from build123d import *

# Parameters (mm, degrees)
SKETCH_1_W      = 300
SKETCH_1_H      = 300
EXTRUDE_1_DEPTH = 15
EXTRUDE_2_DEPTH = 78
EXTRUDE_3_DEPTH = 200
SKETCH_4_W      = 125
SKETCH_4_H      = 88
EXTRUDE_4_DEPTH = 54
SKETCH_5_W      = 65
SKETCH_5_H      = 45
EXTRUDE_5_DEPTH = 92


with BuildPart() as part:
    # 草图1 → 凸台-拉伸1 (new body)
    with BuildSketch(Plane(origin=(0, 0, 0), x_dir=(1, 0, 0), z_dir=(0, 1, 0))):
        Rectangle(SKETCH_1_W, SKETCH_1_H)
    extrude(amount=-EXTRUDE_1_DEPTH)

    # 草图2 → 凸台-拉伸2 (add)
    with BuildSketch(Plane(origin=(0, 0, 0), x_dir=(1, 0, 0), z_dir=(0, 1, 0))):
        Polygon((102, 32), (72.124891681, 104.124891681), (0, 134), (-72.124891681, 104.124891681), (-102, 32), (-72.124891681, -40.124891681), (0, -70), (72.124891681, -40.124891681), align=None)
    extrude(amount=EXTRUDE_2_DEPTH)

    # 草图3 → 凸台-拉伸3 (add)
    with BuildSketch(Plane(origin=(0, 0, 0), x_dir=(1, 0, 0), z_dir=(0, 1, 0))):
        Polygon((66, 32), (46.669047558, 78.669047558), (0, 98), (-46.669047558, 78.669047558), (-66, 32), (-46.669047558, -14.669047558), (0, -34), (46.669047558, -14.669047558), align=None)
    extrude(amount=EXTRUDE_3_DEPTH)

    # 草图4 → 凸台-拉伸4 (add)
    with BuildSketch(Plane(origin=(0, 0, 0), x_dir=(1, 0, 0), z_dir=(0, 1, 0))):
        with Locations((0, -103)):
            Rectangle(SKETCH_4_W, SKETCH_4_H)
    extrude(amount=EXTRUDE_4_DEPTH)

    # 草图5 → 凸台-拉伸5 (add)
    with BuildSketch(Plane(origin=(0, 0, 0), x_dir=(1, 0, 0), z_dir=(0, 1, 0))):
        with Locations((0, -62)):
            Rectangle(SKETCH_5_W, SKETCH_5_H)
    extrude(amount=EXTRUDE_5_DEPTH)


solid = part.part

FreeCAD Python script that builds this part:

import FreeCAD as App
import Part
import Sketcher
Q = App.Units.Quantity

doc = App.newDocument("Part")
body = doc.addObject("PartDesign::Body", "Body")

# Sketch on XZ plane
sketch1 = body.newObject("Sketcher::SketchObject", "Sketch")
sketch1.AttachmentSupport = (doc.getObject("XZ_Plane"), [""])
sketch1.MapMode = "FlatFace"
sketch1.addGeometry([
    Part.LineSegment(App.Vector(-150, -150, 0), App.Vector(-150, 150, 0)),
    Part.LineSegment(App.Vector(-150, 150, 0), App.Vector(150, 150, 0)),
    Part.LineSegment(App.Vector(150, 150, 0), App.Vector(150, -150, 0)),
    Part.LineSegment(App.Vector(150, -150, 0), App.Vector(-150, -150, 0)),
], False)
sketch1.addConstraint([
    Sketcher.Constraint("Coincident", 0, 2, 1, 1),
    Sketcher.Constraint("Coincident", 1, 2, 2, 1),
    Sketcher.Constraint("Coincident", 2, 2, 3, 1),
    Sketcher.Constraint("Coincident", 3, 2, 0, 1),
    Sketcher.Constraint("Vertical", 0),
    Sketcher.Constraint("Horizontal", 1),
    Sketcher.Constraint("Vertical", 2),
    Sketcher.Constraint("Horizontal", 3),
    Sketcher.Constraint("Symmetric", 0, 2, 2, 2, -1, 1),
    Sketcher.Constraint("Equal", 3, 0),
    Sketcher.Constraint("DistanceX", 1, 1, 1, 2, Q("300 mm")),
])
pad1 = body.newObject("PartDesign::Pad", "Pad")
pad1.Profile = sketch1
pad1.Length = 15

# Sketch on XZ plane
sketch2 = body.newObject("Sketcher::SketchObject", "Sketch001")
sketch2.AttachmentSupport = (doc.getObject("XZ_Plane"), [""])
sketch2.MapMode = "FlatFace"
sketch2.addGeometry([
    Part.LineSegment(App.Vector(102, -32, 0), App.Vector(72, -104, 0)),  # 0
    Part.LineSegment(App.Vector(72, -104, 0), App.Vector(0, -134, 0)),  # 1
    Part.LineSegment(App.Vector(0, -134, 0), App.Vector(-72, -104, 0)),  # 2
    Part.LineSegment(App.Vector(-72, -104, 0), App.Vector(-102, -32, 0)),  # 3
    Part.LineSegment(App.Vector(-102, -32, 0), App.Vector(-72, 40, 0)),  # 4
    Part.LineSegment(App.Vector(-72, 40, 0), App.Vector(0, 70, 0)),  # 5
    Part.LineSegment(App.Vector(0, 70, 0), App.Vector(72, 40, 0)),  # 6
    Part.LineSegment(App.Vector(72, 40, 0), App.Vector(102, -32, 0)),  # 7
], False)
sketch2.addConstraint([
    Sketcher.Constraint("Coincident", 0, 2, 1, 1),
    Sketcher.Constraint("Coincident", 1, 2, 2, 1),
    Sketcher.Constraint("Coincident", 2, 2, 3, 1),
    Sketcher.Constraint("Coincident", 3, 2, 4, 1),
    Sketcher.Constraint("Coincident", 4, 2, 5, 1),
    Sketcher.Constraint("Coincident", 5, 2, 6, 1),
    Sketcher.Constraint("Coincident", 6, 2, 7, 1),
    Sketcher.Constraint("Coincident", 7, 2, 0, 1),
    Sketcher.Constraint("Symmetric", 0, 2, 2, 2, -2),
    Sketcher.Constraint("Symmetric", 4, 2, 6, 2, -2),
    Sketcher.Constraint("Symmetric", 3, 2, 7, 2, -2),
    Sketcher.Constraint("PointOnObject", 1, 2, -2),
    Sketcher.Constraint("PointOnObject", 5, 2, -2),
    Sketcher.Constraint("Perpendicular", 0, 2),
    Sketcher.Constraint("Perpendicular", 2, 4),
    Sketcher.Constraint("Perpendicular", 3, 5),
    Sketcher.Constraint("Vertical", 2, 2, 4, 2),
    Sketcher.Constraint("Equal", 0, 1),
    Sketcher.Constraint("DistanceY", 1, 2, -1, 1, Q("134 mm")),
    Sketcher.Constraint("DistanceX", 3, 2, -1, 1, Q("102 mm")),
    Sketcher.Constraint("Angle", 0, Q("-112.5 deg")),
])
pad2 = body.newObject("PartDesign::Pad", "Pad001")
pad2.Profile = sketch2
pad2.Length = 78
pad2.Reversed = True

# Sketch on XZ plane
sketch3 = body.newObject("Sketcher::SketchObject", "Sketch002")
sketch3.AttachmentSupport = (doc.getObject("XZ_Plane"), [""])
sketch3.MapMode = "FlatFace"
sketch3.addGeometry([
    Part.LineSegment(App.Vector(66, -32, 0), App.Vector(47, -79, 0)),  # 0
    Part.LineSegment(App.Vector(47, -79, 0), App.Vector(0, -98, 0)),  # 1
    Part.LineSegment(App.Vector(0, -98, 0), App.Vector(-47, -79, 0)),  # 2
    Part.LineSegment(App.Vector(-47, -79, 0), App.Vector(-66, -32, 0)),  # 3
    Part.LineSegment(App.Vector(-66, -32, 0), App.Vector(-47, 15, 0)),  # 4
    Part.LineSegment(App.Vector(-47, 15, 0), App.Vector(0, 34, 0)),  # 5
    Part.LineSegment(App.Vector(0, 34, 0), App.Vector(47, 15, 0)),  # 6
    Part.LineSegment(App.Vector(47, 15, 0), App.Vector(66, -32, 0)),  # 7
], False)
sketch3.addConstraint([
    Sketcher.Constraint("Coincident", 0, 2, 1, 1),
    Sketcher.Constraint("Coincident", 1, 2, 2, 1),
    Sketcher.Constraint("Coincident", 2, 2, 3, 1),
    Sketcher.Constraint("Coincident", 3, 2, 4, 1),
    Sketcher.Constraint("Coincident", 4, 2, 5, 1),
    Sketcher.Constraint("Coincident", 5, 2, 6, 1),
    Sketcher.Constraint("Coincident", 6, 2, 7, 1),
    Sketcher.Constraint("Coincident", 7, 2, 0, 1),
    Sketcher.Constraint("Symmetric", 0, 2, 2, 2, -2),
    Sketcher.Constraint("Symmetric", 4, 2, 6, 2, -2),
    Sketcher.Constraint("Symmetric", 3, 2, 7, 2, -2),
    Sketcher.Constraint("PointOnObject", 1, 2, -2),
    Sketcher.Constraint("PointOnObject", 5, 2, -2),
    Sketcher.Constraint("Perpendicular", 0, 2),
    Sketcher.Constraint("Perpendicular", 2, 4),
    Sketcher.Constraint("Perpendicular", 3, 5),
    Sketcher.Constraint("Vertical", 2, 2, 4, 2),
    Sketcher.Constraint("Equal", 0, 1),
    Sketcher.Constraint("DistanceY", 1, 2, -1, 1, Q("98 mm")),
    Sketcher.Constraint("DistanceX", 3, 2, -1, 1, Q("66 mm")),
    Sketcher.Constraint("Angle", 0, Q("-112.5 deg")),
])
pad3 = body.newObject("PartDesign::Pad", "Pad002")
pad3.Profile = sketch3
pad3.Length = 200
pad3.Reversed = True

# Sketch on XZ plane
sketch4 = body.newObject("Sketcher::SketchObject", "Sketch003")
sketch4.AttachmentSupport = (doc.getObject("XZ_Plane"), [""])
sketch4.MapMode = "FlatFace"
sketch4.addGeometry([
    Part.LineSegment(App.Vector(-62, 59, 0), App.Vector(-62, 147, 0)),
    Part.LineSegment(App.Vector(-62, 147, 0), App.Vector(62, 147, 0)),
    Part.LineSegment(App.Vector(62, 147, 0), App.Vector(62, 59, 0)),
    Part.LineSegment(App.Vector(62, 59, 0), App.Vector(-62, 59, 0)),
], False)
sketch4.addConstraint([
    Sketcher.Constraint("Coincident", 0, 2, 1, 1),
    Sketcher.Constraint("Coincident", 1, 2, 2, 1),
    Sketcher.Constraint("Coincident", 2, 2, 3, 1),
    Sketcher.Constraint("Coincident", 3, 2, 0, 1),
    Sketcher.Constraint("Vertical", 0),
    Sketcher.Constraint("Horizontal", 1),
    Sketcher.Constraint("Vertical", 2),
    Sketcher.Constraint("Horizontal", 3),
    Sketcher.Constraint("DistanceX", 1, 1, 1, 2, Q("125 mm")),
    Sketcher.Constraint("DistanceY", 0, 1, 0, 2, Q("88 mm")),
    Sketcher.Constraint("DistanceY", -1, 1, 0, 2, Q("147 mm")),
    Sketcher.Constraint("DistanceX", 0, 2, -1, 1, Q("62.5 mm")),
])
pad4 = body.newObject("PartDesign::Pad", "Pad003")
pad4.Profile = sketch4
pad4.Length = 54
pad4.Reversed = True

# Sketch on XZ plane
sketch5 = body.newObject("Sketcher::SketchObject", "Sketch004")
sketch5.AttachmentSupport = (doc.getObject("XZ_Plane"), [""])
sketch5.MapMode = "FlatFace"
sketch5.addGeometry([
    Part.LineSegment(App.Vector(-32, 40, 0), App.Vector(-32, 84, 0)),
    Part.LineSegment(App.Vector(-32, 84, 0), App.Vector(32, 84, 0)),
    Part.LineSegment(App.Vector(32, 84, 0), App.Vector(32, 40, 0)),
    Part.LineSegment(App.Vector(32, 40, 0), App.Vector(-32, 40, 0)),
], False)
sketch5.addConstraint([
    Sketcher.Constraint("Coincident", 0, 2, 1, 1),
    Sketcher.Constraint("Coincident", 1, 2, 2, 1),
    Sketcher.Constraint("Coincident", 2, 2, 3, 1),
    Sketcher.Constraint("Coincident", 3, 2, 0, 1),
    Sketcher.Constraint("Vertical", 0),
    Sketcher.Constraint("Horizontal", 1),
    Sketcher.Constraint("Vertical", 2),
    Sketcher.Constraint("Horizontal", 3),
    Sketcher.Constraint("DistanceX", 1, 1, 1, 2, Q("65 mm")),
    Sketcher.Constraint("DistanceY", 0, 1, 0, 2, Q("45 mm")),
    Sketcher.Constraint("DistanceX", 0, 2, -1, 1, Q("32.5 mm")),
    Sketcher.Constraint("DistanceY", -1, 1, 0, 2, Q("84.5 mm")),
])
pad5 = body.newObject("PartDesign::Pad", "Pad004")
pad5.Profile = sketch5
pad5.Length = 92
pad5.Reversed = True

doc.recompute()
